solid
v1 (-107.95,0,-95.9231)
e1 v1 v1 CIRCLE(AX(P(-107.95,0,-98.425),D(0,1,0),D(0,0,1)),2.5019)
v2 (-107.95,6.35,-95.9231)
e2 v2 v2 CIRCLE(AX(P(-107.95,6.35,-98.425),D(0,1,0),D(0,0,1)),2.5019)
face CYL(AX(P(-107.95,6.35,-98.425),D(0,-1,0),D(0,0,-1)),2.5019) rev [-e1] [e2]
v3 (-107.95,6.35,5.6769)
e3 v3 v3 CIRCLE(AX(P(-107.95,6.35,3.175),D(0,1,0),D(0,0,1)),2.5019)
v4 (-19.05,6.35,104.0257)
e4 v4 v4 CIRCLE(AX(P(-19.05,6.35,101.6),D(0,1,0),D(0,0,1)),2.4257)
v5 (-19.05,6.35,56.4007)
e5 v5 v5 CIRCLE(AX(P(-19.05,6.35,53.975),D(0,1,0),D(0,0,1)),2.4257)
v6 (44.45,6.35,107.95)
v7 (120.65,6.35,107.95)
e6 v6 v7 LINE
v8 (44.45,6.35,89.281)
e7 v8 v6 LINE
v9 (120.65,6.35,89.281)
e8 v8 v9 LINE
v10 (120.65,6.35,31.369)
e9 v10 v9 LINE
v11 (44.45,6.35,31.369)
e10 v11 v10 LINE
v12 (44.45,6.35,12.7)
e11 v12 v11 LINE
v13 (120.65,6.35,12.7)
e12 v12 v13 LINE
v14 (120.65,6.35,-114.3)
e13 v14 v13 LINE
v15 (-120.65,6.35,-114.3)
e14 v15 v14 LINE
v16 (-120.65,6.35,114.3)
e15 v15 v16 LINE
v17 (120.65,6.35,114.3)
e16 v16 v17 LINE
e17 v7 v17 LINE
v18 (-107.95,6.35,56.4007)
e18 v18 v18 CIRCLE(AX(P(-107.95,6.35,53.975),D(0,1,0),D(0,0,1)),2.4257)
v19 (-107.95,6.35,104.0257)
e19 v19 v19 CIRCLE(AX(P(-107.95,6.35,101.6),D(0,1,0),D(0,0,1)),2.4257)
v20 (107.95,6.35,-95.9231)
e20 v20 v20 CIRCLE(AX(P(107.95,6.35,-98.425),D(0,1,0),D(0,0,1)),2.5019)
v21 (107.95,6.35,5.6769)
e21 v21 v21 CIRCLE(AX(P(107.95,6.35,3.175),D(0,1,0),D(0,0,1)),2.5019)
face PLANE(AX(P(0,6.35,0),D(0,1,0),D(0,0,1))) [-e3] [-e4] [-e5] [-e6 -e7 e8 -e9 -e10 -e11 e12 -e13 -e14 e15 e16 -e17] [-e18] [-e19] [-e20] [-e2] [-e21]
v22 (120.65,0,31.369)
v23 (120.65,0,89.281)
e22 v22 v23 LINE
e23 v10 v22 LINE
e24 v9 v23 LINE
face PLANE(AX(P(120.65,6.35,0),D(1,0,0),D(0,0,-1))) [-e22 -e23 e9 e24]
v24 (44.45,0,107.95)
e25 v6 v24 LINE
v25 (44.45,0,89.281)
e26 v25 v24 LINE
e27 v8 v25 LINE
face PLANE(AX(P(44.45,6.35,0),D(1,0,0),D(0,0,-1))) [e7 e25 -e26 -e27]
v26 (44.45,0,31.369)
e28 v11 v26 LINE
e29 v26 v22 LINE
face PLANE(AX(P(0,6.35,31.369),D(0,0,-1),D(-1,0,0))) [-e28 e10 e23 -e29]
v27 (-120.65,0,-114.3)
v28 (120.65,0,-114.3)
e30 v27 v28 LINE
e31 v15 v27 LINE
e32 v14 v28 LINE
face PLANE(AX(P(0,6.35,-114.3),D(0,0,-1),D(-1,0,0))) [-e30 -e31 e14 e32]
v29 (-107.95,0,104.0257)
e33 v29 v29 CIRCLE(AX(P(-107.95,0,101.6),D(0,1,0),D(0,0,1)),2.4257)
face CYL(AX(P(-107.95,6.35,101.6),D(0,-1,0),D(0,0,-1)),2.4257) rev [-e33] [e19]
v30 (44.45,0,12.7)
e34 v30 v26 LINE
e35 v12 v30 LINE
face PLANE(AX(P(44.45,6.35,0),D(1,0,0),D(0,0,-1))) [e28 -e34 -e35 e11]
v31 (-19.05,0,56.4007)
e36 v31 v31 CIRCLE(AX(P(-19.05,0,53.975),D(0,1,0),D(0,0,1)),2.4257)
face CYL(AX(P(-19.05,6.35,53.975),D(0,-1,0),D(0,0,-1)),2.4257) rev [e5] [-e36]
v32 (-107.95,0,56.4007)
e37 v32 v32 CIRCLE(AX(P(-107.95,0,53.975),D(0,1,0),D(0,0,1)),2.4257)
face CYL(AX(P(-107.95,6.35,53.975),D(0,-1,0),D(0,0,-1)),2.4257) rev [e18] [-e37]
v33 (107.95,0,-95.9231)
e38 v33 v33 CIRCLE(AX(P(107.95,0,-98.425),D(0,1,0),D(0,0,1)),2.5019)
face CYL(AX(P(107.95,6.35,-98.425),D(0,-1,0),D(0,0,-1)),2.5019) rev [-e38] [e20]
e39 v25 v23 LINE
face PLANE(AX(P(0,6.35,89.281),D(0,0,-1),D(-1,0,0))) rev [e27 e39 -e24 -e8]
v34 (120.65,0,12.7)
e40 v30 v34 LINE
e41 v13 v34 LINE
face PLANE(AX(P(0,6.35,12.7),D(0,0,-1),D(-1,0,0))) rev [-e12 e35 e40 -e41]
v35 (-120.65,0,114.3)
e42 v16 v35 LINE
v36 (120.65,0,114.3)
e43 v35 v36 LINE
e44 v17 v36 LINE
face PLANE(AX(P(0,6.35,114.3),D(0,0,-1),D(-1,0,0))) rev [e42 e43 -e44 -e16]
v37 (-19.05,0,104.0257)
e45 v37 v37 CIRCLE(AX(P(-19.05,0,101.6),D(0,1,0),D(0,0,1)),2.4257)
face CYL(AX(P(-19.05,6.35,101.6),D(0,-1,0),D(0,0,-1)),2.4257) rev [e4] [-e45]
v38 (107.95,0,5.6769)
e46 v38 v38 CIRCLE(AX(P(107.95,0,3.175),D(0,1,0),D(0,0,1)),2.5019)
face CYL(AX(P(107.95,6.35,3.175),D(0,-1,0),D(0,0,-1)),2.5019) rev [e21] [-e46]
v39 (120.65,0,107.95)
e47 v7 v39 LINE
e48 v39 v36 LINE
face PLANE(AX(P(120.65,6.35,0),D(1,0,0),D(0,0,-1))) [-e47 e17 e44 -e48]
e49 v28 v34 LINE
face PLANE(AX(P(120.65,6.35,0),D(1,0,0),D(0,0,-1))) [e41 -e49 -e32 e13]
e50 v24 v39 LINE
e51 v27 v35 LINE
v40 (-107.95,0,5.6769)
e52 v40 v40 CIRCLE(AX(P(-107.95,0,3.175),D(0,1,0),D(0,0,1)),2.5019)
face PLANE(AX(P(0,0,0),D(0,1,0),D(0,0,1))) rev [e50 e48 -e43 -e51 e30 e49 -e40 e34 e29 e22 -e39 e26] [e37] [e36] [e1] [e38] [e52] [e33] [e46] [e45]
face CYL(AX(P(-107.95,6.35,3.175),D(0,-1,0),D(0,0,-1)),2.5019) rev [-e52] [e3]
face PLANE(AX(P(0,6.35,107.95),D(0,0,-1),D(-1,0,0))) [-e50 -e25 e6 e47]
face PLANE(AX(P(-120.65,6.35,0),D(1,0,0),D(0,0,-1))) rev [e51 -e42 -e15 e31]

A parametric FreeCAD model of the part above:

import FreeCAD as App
import Part
import Sketcher
Q = App.Units.Quantity

doc = App.newDocument("Part")
params = doc.addObject("Spreadsheet::Sheet", "Params")
for row, (alias, value) in enumerate([
    ("sketch1_width", "3 in"),
    ("sketch1_height", "9 in"),
    ("sketch1_height2", "5 in"),
    ("sketch1_diameter", "0.191 in"),
    ("sketch1_diameter2", "0.197 in"),
    ("pad1_length", "0.25 in"),
], start=1):
    params.set(f"A{row}", alias)
    params.set(f"B{row}", "=" + value)
    params.setAlias(f"B{row}", alias)

body = doc.addObject("PartDesign::Body", "Body")

# Sketch on XZ plane
sketch1 = doc.addObject("Sketcher::SketchObject", "Sketch")
body.addObject(sketch1)
sketch1.AttachmentSupport = (doc.XZ_Plane, [""])
sketch1.MapMode = "FlatFace"
sketch1.addGeometry([
    Part.LineSegment(App.Vector(120.7, -114.3, 0), App.Vector(-120.7, -114.3, 0)),  # 0
    Part.LineSegment(App.Vector(-120.7, -114.3, 0), App.Vector(-120.7, 114.3, 0)),  # 1
    Part.LineSegment(App.Vector(-120.7, 114.3, 0), App.Vector(120.7, 114.3, 0)),  # 2
    Part.LineSegment(App.Vector(120.7, 114.3, 0), App.Vector(120.7, 108, 0)),  # 3
    Part.LineSegment(App.Vector(120.7, 108, 0), App.Vector(44.5, 108, 0)),  # 4
    Part.LineSegment(App.Vector(44.5, 108, 0), App.Vector(44.5, 89.3, 0)),  # 5
    Part.LineSegment(App.Vector(44.5, 89.3, 0), App.Vector(120.7, 89.3, 0)),  # 6
    Part.LineSegment(App.Vector(120.7, 89.3, 0), App.Vector(120.7, 31.4, 0)),  # 7
    Part.LineSegment(App.Vector(120.7, 31.4, 0), App.Vector(44.5, 31.4, 0)),  # 8
    Part.LineSegment(App.Vector(44.5, 31.4, 0), App.Vector(44.5, 12.7, 0)),  # 9
    Part.LineSegment(App.Vector(44.5, 12.7, 0), App.Vector(120.7, 12.7, 0)),  # 10
    Part.LineSegment(App.Vector(120.7, 12.7, 0), App.Vector(120.7, -114.3, 0)),  # 11
    Part.Circle(App.Vector(-108, 101.6, 0), App.Vector(0, 0, 1), 2.4),  # 12
    Part.Circle(App.Vector(-108, 54, 0), App.Vector(0, 0, 1), 2.4),  # 13
    Part.Circle(App.Vector(-19.1, 101.6, 0), App.Vector(0, 0, 1), 2.4),  # 14
    Part.Circle(App.Vector(-19.1, 54, 0), App.Vector(0, 0, 1), 2.4),  # 15
    Part.Circle(App.Vector(-108, 3.2, 0), App.Vector(0, 0, 1), 2.5),  # 16
    Part.Circle(App.Vector(108, 3.2, 0), App.Vector(0, 0, 1), 2.5),  # 17
    Part.Circle(App.Vector(-108, -98.4, 0), App.Vector(0, 0, 1), 2.5),  # 18
    Part.Circle(App.Vector(108, -98.4, 0), App.Vector(0, 0, 1), 2.5),  # 19
], False)
sketch1.addConstraint([
    Sketcher.Constraint("Coincident", 0, 2, 1, 1),
    Sketcher.Constraint("Coincident", 1, 2, 2, 1),
    Sketcher.Constraint("Coincident", 2, 2, 3, 1),
    Sketcher.Constraint("Coincident", 3, 2, 4, 1),
    Sketcher.Constraint("Coincident", 4, 2, 5, 1),
    Sketcher.Constraint("Coincident", 5, 2, 6, 1),
    Sketcher.Constraint("Coincident", 6, 2, 7, 1),
    Sketcher.Constraint("Coincident", 7, 2, 8, 1),
    Sketcher.Constraint("Coincident", 8, 2, 9, 1),
    Sketcher.Constraint("Coincident", 9, 2, 10, 1),
    Sketcher.Constraint("Coincident", 10, 2, 11, 1),
    Sketcher.Constraint("Coincident", 11, 2, 0, 1),
    Sketcher.Constraint("Horizontal", 0),
    Sketcher.Constraint("Vertical", 1),
    Sketcher.Constraint("Horizontal", 2),
    Sketcher.Constraint("Vertical", 3),
    Sketcher.Constraint("Horizontal", 4),
    Sketcher.Constraint("Vertical", 5),
    Sketcher.Constraint("Horizontal", 6),
    Sketcher.Constraint("Vertical", 7),
    Sketcher.Constraint("Horizontal", 8),
    Sketcher.Constraint("Vertical", 9),
    Sketcher.Constraint("Horizontal", 10),
    Sketcher.Constraint("Vertical", 11),
    Sketcher.Constraint("Equal", 12, 13),
    Sketcher.Constraint("Equal", 13, 14),
    Sketcher.Constraint("Equal", 14, 15),
    Sketcher.Constraint("Equal", 16, 17),
    Sketcher.Constraint("Equal", 17, 18),
    Sketcher.Constraint("Equal", 18, 19),
    Sketcher.Constraint("Symmetric", 0, 2, 2, 2, -1, 1),
    Sketcher.Constraint("Symmetric", 16, 3, 17, 3, -2),
    Sketcher.Constraint("Symmetric", 18, 3, 19, 3, -2),
    Sketcher.Constraint("Horizontal", 12, 3, 14, 3),
    Sketcher.Constraint("Horizontal", 13, 3, 15, 3),
    Sketcher.Constraint("Vertical", 12, 3, 13, 3),
    Sketcher.Constraint("Vertical", 14, 3, 15, 3),
    Sketcher.Constraint("Vertical", 13, 3, 16, 3),
    Sketcher.Constraint("Vertical", 16, 3, 18, 3),
    Sketcher.Constraint("Vertical", 3, 2, 6, 2),
    Sketcher.Constraint("Vertical", 5, 2, 8, 2),
    Sketcher.Constraint("Vertical", 7, 2, 10, 2),
    Sketcher.Constraint("Equal", 5, 9),
    Sketcher.Constraint("DistanceX", 4, 2, 4, 1, Q("3 in")),
    Sketcher.Constraint("DistanceY", 1, 1, 1, 2, Q("9 in")),
    Sketcher.Constraint("DistanceY", 11, 2, 11, 1, Q("5 in")),
    Sketcher.Constraint("Diameter", 12, Q("0.191 in")),
    Sketcher.Constraint("Diameter", 16, Q("0.197 in")),
    Sketcher.Constraint("DistanceX", 0, 2, 0, 1, Q("9.5 in")),
    Sketcher.Constraint("DistanceY", -1, 1, 12, 3, Q("4 in")),
    Sketcher.Constraint("DistanceY", 16, 3, 13, 3, Q("2 in")),
    Sketcher.Constraint("DistanceX", 15, 3, 17, 3, Q("5 in")),
    Sketcher.Constraint("DistanceY", 18, 3, 16, 3, Q("4 in")),
    Sketcher.Constraint("DistanceX", 0, 2, 15, 3, Q("4 in")),
    Sketcher.Constraint("DistanceY", 3, 2, 3, 1, Q("0.25 in")),
    Sketcher.Constraint("DistanceY", 7, 2, 7, 1, Q("2.28 in")),
    Sketcher.Constraint("DistanceY", 15, 3, 5, 2, Q("1.39 in")),
])
sketch1.setExpression("Constraints[43]", "Params.sketch1_width")
sketch1.setExpression("Constraints[44]", "Params.sketch1_height")
sketch1.setExpression("Constraints[45]", "Params.sketch1_height2")
sketch1.setExpression("Constraints[46]", "Params.sketch1_diameter")
sketch1.setExpression("Constraints[47]", "Params.sketch1_diameter2")
pad1 = doc.addObject("PartDesign::Pad", "Pad")
body.addObject(pad1)
pad1.Profile = sketch1
pad1.setExpression("Length", "Params.pad1_length")
pad1.Reversed = True

doc.recompute()
